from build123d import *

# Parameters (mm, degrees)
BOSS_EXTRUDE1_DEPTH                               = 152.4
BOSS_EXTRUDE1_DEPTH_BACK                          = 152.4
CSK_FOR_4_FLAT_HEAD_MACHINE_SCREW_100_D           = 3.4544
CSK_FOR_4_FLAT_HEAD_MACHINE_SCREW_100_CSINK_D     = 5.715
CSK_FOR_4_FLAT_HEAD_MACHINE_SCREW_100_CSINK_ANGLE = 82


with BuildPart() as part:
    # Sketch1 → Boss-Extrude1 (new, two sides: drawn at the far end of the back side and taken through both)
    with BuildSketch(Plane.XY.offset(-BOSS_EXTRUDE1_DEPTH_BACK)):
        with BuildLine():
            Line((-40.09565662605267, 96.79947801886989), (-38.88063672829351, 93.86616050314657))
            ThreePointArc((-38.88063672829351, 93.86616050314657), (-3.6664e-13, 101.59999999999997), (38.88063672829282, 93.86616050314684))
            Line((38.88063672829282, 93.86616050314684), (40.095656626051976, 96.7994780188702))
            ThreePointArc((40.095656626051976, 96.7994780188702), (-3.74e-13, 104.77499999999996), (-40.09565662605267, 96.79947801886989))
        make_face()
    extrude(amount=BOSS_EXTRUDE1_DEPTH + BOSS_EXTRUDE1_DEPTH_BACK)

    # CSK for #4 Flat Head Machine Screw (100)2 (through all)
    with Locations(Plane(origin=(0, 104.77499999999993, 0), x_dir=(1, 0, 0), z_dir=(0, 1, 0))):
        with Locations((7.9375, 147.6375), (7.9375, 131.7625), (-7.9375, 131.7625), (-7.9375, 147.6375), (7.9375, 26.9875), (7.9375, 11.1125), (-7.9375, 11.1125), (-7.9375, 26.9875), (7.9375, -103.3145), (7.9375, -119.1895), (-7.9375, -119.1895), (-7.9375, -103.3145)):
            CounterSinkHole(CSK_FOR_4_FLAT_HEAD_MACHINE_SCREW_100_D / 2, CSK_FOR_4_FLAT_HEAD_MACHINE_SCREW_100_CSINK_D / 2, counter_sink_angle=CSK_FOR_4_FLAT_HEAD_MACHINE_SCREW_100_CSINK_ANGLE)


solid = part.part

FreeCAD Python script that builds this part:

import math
import FreeCAD as App
import Part
import Sketcher
Q = App.Units.Quantity

doc = App.newDocument("Part")
params = doc.addObject("Spreadsheet::Sheet", "Params")
for row, (alias, value) in enumerate([
    ("sketch1_radius", "4 in"),
    ("sketch1_radius2", "4.125 in"),
    ("pad1_length", "6 in"),
    ("pad1_length2", "6 in"),
    ("sketch2_diameter", "0.136 in"),
    ("hole_diameter", "0.136 in"),
    ("hole_csink_diameter", "0.225 in"),
], start=1):
    params.set(f"A{row}", alias)
    params.set(f"B{row}", "=" + value)
    params.setAlias(f"B{row}", alias)

body = doc.addObject("PartDesign::Body", "Body")

sketch1 = body.newObject("Sketcher::SketchObject", "Sketch")
sketch1.AttachmentSupport = (doc.getObject("XY_Plane"), [""])
sketch1.MapMode = "FlatFace"
sketch1.addGeometry(Part.LineSegment(App.Vector(-40.1, 96.8, 0), App.Vector(-38.9, 93.9, 0)), False)
sketch1.addGeometry(Part.ArcOfCircle(Part.Circle(App.Vector(0, 0, 0), App.Vector(0, 0, 1), 101.6), math.radians(68), math.radians(112)), False)
sketch1.addGeometry(Part.LineSegment(App.Vector(38.9, 93.9, 0), App.Vector(40.1, 96.8, 0)), False)
sketch1.addGeometry(Part.ArcOfCircle(Part.Circle(App.Vector(0, 0, 0), App.Vector(0, 0, 1), 104.8), math.radians(68), math.radians(112)), False)
sketch1.addConstraint(Sketcher.Constraint("Coincident", 0, 2, 1, 2))
sketch1.addConstraint(Sketcher.Constraint("Coincident", 1, 1, 2, 1))
sketch1.addConstraint(Sketcher.Constraint("Coincident", 2, 2, 3, 1))
sketch1.addConstraint(Sketcher.Constraint("Coincident", 3, 2, 0, 1))
sketch1.addConstraint(Sketcher.Constraint("Coincident", 1, 3, -1, 1))
sketch1.addConstraint(Sketcher.Constraint("Coincident", 3, 3, -1, 1))
sketch1.addConstraint(Sketcher.Constraint("Horizontal", 0, 2, 1, 1))
sketch1.addConstraint(Sketcher.Constraint("Horizontal", 2, 2, 3, 2))
sketch1.addConstraint(Sketcher.Constraint("Radius", 1, Q("4 in")))
sketch1.addConstraint(Sketcher.Constraint("Radius", 3, Q("4.125 in")))
sketch1.addConstraint(Sketcher.Constraint("Angle", 0, Q("-67.5 deg")))
sketch1.addConstraint(Sketcher.Constraint("DistanceY", -1, 1, 0, 2, 93.866161))
sketch1.setExpression("Constraints[8]", "Params.sketch1_radius")
sketch1.setExpression("Constraints[9]", "Params.sketch1_radius2")
pad1 = body.newObject("PartDesign::Pad", "Pad")
pad1.Profile = sketch1
pad1.Type = "TwoLengths"
pad1.setExpression("Length", "Params.pad1_length")
pad1.setExpression("Length2", "Params.pad1_length2")

sketch2 = body.newObject("Sketcher::SketchObject", "Sketch001")
sketch2.AttachmentSupport = (doc.getObject("XZ_Plane"), [""])
sketch2.MapMode = "FlatFace"
sketch2.AttachmentOffset = App.Placement(App.Vector(0, 0, -4.125 * 25.4), App.Rotation())
sketch2.addGeometry(Part.Circle(App.Vector(7.9, -147.6, 0), App.Vector(0, 0, 1), 1.7), False)
sketch2.addGeometry(Part.Circle(App.Vector(7.9, -131.8, 0), App.Vector(0, 0, 1), 1.7), False)
sketch2.addGeometry(Part.Circle(App.Vector(-7.9, -131.8, 0), App.Vector(0, 0, 1), 1.7), False)
sketch2.addGeometry(Part.Circle(App.Vector(-7.9, -147.6, 0), App.Vector(0, 0, 1), 1.7), False)
sketch2.addGeometry(Part.Circle(App.Vector(7.9, -27, 0), App.Vector(0, 0, 1), 1.7), False)
sketch2.addGeometry(Part.Circle(App.Vector(7.9, -11.1, 0), App.Vector(0, 0, 1), 1.7), False)
sketch2.addGeometry(Part.Circle(App.Vector(-7.9, -11.1, 0), App.Vector(0, 0, 1), 1.7), False)
sketch2.addGeometry(Part.Circle(App.Vector(-7.9, -27, 0), App.Vector(0, 0, 1), 1.7), False)
sketch2.addGeometry(Part.Circle(App.Vector(7.9, 103.3, 0), App.Vector(0, 0, 1), 1.7), False)
sketch2.addGeometry(Part.Circle(App.Vector(7.9, 119.2, 0), App.Vector(0, 0, 1), 1.7), False)
sketch2.addGeometry(Part.Circle(App.Vector(-7.9, 119.2, 0), App.Vector(0, 0, 1), 1.7), False)
sketch2.addGeometry(Part.Circle(App.Vector(-7.9, 103.3, 0), App.Vector(0, 0, 1), 1.7), False)
sketch2.addConstraint(Sketcher.Constraint("Equal", 0, 1))
sketch2.addConstraint(Sketcher.Constraint("Equal", 1, 2))
sketch2.addConstraint(Sketcher.Constraint("Equal", 2, 3))
sketch2.addConstraint(Sketcher.Constraint("Equal", 3, 4))
sketch2.addConstraint(Sketcher.Constraint("Equal", 4, 5))
sketch2.addConstraint(Sketcher.Constraint("Equal", 5, 6))
sketch2.addConstraint(Sketcher.Constraint("Equal", 6, 7))
sketch2.addConstraint(Sketcher.Constraint("Equal", 7, 8))
sketch2.addConstraint(Sketcher.Constraint("Equal", 8, 9))
sketch2.addConstraint(Sketcher.Constraint("Equal", 9, 10))
sketch2.addConstraint(Sketcher.Constraint("Equal", 10, 11))
sketch2.addConstraint(Sketcher.Constraint("Symmetric", 1, 3, 2, 3, -2))
sketch2.addConstraint(Sketcher.Constraint("Symmetric", 0, 3, 3, 3, -2))
sketch2.addConstraint(Sketcher.Constraint("Symmetric", 5, 3, 6, 3, -2))
sketch2.addConstraint(Sketcher.Constraint("Symmetric", 4, 3, 7, 3, -2))
sketch2.addConstraint(Sketcher.Constraint("Symmetric", 9, 3, 10, 3, -2))
sketch2.addConstraint(Sketcher.Constraint("Symmetric", 8, 3, 11, 3, -2))
sketch2.addConstraint(Sketcher.Constraint("Vertical", 0, 3, 1, 3))
sketch2.addConstraint(Sketcher.Constraint("Vertical", 1, 3, 4, 3))
sketch2.addConstraint(Sketcher.Constraint("Vertical", 4, 3, 5, 3))
sketch2.addConstraint(Sketcher.Constraint("Vertical", 5, 3, 8, 3))
sketch2.addConstraint(Sketcher.Constraint("Vertical", 8, 3, 9, 3))
sketch2.addConstraint(Sketcher.Constraint("Diameter", 0, Q("0.136 in")))
sketch2.addConstraint(Sketcher.Constraint("DistanceY", 0, 3, 4, 3, Q("4.75 in")))
sketch2.addConstraint(Sketcher.Constraint("DistanceY", 1, 3, 5, 3, Q("4.75 in")))
sketch2.addConstraint(Sketcher.Constraint("DistanceY", 4, 3, 8, 3, Q("5.13 in")))
sketch2.addConstraint(Sketcher.Constraint("DistanceY", 5, 3, 9, 3, Q("5.13 in")))
sketch2.addConstraint(Sketcher.Constraint("DistanceX", -1, 1, 0, 3, Q("0.3125 in")))
sketch2.addConstraint(Sketcher.Constraint("DistanceY", 0, 3, -1, 1, Q("5.8125 in")))
sketch2.addConstraint(Sketcher.Constraint("DistanceY", 1, 3, -1, 1, Q("5.1875 in")))
sketch2.setExpression("Constraints[22]", "Params.sketch2_diameter")
doc.recompute()
hole = body.newObject("PartDesign::Hole", "Hole")
hole.Profile = sketch2
hole.ThreadType = "None"
hole.setExpression("Diameter", "Params.hole_diameter")
hole.DepthType = "ThroughAll"
hole.HoleCutType = "Countersink"
hole.setExpression("HoleCutDiameter", "Params.hole_csink_diameter")
hole.HoleCutCountersinkAngle = 82
hole.Reversed = True

doc.recompute()
